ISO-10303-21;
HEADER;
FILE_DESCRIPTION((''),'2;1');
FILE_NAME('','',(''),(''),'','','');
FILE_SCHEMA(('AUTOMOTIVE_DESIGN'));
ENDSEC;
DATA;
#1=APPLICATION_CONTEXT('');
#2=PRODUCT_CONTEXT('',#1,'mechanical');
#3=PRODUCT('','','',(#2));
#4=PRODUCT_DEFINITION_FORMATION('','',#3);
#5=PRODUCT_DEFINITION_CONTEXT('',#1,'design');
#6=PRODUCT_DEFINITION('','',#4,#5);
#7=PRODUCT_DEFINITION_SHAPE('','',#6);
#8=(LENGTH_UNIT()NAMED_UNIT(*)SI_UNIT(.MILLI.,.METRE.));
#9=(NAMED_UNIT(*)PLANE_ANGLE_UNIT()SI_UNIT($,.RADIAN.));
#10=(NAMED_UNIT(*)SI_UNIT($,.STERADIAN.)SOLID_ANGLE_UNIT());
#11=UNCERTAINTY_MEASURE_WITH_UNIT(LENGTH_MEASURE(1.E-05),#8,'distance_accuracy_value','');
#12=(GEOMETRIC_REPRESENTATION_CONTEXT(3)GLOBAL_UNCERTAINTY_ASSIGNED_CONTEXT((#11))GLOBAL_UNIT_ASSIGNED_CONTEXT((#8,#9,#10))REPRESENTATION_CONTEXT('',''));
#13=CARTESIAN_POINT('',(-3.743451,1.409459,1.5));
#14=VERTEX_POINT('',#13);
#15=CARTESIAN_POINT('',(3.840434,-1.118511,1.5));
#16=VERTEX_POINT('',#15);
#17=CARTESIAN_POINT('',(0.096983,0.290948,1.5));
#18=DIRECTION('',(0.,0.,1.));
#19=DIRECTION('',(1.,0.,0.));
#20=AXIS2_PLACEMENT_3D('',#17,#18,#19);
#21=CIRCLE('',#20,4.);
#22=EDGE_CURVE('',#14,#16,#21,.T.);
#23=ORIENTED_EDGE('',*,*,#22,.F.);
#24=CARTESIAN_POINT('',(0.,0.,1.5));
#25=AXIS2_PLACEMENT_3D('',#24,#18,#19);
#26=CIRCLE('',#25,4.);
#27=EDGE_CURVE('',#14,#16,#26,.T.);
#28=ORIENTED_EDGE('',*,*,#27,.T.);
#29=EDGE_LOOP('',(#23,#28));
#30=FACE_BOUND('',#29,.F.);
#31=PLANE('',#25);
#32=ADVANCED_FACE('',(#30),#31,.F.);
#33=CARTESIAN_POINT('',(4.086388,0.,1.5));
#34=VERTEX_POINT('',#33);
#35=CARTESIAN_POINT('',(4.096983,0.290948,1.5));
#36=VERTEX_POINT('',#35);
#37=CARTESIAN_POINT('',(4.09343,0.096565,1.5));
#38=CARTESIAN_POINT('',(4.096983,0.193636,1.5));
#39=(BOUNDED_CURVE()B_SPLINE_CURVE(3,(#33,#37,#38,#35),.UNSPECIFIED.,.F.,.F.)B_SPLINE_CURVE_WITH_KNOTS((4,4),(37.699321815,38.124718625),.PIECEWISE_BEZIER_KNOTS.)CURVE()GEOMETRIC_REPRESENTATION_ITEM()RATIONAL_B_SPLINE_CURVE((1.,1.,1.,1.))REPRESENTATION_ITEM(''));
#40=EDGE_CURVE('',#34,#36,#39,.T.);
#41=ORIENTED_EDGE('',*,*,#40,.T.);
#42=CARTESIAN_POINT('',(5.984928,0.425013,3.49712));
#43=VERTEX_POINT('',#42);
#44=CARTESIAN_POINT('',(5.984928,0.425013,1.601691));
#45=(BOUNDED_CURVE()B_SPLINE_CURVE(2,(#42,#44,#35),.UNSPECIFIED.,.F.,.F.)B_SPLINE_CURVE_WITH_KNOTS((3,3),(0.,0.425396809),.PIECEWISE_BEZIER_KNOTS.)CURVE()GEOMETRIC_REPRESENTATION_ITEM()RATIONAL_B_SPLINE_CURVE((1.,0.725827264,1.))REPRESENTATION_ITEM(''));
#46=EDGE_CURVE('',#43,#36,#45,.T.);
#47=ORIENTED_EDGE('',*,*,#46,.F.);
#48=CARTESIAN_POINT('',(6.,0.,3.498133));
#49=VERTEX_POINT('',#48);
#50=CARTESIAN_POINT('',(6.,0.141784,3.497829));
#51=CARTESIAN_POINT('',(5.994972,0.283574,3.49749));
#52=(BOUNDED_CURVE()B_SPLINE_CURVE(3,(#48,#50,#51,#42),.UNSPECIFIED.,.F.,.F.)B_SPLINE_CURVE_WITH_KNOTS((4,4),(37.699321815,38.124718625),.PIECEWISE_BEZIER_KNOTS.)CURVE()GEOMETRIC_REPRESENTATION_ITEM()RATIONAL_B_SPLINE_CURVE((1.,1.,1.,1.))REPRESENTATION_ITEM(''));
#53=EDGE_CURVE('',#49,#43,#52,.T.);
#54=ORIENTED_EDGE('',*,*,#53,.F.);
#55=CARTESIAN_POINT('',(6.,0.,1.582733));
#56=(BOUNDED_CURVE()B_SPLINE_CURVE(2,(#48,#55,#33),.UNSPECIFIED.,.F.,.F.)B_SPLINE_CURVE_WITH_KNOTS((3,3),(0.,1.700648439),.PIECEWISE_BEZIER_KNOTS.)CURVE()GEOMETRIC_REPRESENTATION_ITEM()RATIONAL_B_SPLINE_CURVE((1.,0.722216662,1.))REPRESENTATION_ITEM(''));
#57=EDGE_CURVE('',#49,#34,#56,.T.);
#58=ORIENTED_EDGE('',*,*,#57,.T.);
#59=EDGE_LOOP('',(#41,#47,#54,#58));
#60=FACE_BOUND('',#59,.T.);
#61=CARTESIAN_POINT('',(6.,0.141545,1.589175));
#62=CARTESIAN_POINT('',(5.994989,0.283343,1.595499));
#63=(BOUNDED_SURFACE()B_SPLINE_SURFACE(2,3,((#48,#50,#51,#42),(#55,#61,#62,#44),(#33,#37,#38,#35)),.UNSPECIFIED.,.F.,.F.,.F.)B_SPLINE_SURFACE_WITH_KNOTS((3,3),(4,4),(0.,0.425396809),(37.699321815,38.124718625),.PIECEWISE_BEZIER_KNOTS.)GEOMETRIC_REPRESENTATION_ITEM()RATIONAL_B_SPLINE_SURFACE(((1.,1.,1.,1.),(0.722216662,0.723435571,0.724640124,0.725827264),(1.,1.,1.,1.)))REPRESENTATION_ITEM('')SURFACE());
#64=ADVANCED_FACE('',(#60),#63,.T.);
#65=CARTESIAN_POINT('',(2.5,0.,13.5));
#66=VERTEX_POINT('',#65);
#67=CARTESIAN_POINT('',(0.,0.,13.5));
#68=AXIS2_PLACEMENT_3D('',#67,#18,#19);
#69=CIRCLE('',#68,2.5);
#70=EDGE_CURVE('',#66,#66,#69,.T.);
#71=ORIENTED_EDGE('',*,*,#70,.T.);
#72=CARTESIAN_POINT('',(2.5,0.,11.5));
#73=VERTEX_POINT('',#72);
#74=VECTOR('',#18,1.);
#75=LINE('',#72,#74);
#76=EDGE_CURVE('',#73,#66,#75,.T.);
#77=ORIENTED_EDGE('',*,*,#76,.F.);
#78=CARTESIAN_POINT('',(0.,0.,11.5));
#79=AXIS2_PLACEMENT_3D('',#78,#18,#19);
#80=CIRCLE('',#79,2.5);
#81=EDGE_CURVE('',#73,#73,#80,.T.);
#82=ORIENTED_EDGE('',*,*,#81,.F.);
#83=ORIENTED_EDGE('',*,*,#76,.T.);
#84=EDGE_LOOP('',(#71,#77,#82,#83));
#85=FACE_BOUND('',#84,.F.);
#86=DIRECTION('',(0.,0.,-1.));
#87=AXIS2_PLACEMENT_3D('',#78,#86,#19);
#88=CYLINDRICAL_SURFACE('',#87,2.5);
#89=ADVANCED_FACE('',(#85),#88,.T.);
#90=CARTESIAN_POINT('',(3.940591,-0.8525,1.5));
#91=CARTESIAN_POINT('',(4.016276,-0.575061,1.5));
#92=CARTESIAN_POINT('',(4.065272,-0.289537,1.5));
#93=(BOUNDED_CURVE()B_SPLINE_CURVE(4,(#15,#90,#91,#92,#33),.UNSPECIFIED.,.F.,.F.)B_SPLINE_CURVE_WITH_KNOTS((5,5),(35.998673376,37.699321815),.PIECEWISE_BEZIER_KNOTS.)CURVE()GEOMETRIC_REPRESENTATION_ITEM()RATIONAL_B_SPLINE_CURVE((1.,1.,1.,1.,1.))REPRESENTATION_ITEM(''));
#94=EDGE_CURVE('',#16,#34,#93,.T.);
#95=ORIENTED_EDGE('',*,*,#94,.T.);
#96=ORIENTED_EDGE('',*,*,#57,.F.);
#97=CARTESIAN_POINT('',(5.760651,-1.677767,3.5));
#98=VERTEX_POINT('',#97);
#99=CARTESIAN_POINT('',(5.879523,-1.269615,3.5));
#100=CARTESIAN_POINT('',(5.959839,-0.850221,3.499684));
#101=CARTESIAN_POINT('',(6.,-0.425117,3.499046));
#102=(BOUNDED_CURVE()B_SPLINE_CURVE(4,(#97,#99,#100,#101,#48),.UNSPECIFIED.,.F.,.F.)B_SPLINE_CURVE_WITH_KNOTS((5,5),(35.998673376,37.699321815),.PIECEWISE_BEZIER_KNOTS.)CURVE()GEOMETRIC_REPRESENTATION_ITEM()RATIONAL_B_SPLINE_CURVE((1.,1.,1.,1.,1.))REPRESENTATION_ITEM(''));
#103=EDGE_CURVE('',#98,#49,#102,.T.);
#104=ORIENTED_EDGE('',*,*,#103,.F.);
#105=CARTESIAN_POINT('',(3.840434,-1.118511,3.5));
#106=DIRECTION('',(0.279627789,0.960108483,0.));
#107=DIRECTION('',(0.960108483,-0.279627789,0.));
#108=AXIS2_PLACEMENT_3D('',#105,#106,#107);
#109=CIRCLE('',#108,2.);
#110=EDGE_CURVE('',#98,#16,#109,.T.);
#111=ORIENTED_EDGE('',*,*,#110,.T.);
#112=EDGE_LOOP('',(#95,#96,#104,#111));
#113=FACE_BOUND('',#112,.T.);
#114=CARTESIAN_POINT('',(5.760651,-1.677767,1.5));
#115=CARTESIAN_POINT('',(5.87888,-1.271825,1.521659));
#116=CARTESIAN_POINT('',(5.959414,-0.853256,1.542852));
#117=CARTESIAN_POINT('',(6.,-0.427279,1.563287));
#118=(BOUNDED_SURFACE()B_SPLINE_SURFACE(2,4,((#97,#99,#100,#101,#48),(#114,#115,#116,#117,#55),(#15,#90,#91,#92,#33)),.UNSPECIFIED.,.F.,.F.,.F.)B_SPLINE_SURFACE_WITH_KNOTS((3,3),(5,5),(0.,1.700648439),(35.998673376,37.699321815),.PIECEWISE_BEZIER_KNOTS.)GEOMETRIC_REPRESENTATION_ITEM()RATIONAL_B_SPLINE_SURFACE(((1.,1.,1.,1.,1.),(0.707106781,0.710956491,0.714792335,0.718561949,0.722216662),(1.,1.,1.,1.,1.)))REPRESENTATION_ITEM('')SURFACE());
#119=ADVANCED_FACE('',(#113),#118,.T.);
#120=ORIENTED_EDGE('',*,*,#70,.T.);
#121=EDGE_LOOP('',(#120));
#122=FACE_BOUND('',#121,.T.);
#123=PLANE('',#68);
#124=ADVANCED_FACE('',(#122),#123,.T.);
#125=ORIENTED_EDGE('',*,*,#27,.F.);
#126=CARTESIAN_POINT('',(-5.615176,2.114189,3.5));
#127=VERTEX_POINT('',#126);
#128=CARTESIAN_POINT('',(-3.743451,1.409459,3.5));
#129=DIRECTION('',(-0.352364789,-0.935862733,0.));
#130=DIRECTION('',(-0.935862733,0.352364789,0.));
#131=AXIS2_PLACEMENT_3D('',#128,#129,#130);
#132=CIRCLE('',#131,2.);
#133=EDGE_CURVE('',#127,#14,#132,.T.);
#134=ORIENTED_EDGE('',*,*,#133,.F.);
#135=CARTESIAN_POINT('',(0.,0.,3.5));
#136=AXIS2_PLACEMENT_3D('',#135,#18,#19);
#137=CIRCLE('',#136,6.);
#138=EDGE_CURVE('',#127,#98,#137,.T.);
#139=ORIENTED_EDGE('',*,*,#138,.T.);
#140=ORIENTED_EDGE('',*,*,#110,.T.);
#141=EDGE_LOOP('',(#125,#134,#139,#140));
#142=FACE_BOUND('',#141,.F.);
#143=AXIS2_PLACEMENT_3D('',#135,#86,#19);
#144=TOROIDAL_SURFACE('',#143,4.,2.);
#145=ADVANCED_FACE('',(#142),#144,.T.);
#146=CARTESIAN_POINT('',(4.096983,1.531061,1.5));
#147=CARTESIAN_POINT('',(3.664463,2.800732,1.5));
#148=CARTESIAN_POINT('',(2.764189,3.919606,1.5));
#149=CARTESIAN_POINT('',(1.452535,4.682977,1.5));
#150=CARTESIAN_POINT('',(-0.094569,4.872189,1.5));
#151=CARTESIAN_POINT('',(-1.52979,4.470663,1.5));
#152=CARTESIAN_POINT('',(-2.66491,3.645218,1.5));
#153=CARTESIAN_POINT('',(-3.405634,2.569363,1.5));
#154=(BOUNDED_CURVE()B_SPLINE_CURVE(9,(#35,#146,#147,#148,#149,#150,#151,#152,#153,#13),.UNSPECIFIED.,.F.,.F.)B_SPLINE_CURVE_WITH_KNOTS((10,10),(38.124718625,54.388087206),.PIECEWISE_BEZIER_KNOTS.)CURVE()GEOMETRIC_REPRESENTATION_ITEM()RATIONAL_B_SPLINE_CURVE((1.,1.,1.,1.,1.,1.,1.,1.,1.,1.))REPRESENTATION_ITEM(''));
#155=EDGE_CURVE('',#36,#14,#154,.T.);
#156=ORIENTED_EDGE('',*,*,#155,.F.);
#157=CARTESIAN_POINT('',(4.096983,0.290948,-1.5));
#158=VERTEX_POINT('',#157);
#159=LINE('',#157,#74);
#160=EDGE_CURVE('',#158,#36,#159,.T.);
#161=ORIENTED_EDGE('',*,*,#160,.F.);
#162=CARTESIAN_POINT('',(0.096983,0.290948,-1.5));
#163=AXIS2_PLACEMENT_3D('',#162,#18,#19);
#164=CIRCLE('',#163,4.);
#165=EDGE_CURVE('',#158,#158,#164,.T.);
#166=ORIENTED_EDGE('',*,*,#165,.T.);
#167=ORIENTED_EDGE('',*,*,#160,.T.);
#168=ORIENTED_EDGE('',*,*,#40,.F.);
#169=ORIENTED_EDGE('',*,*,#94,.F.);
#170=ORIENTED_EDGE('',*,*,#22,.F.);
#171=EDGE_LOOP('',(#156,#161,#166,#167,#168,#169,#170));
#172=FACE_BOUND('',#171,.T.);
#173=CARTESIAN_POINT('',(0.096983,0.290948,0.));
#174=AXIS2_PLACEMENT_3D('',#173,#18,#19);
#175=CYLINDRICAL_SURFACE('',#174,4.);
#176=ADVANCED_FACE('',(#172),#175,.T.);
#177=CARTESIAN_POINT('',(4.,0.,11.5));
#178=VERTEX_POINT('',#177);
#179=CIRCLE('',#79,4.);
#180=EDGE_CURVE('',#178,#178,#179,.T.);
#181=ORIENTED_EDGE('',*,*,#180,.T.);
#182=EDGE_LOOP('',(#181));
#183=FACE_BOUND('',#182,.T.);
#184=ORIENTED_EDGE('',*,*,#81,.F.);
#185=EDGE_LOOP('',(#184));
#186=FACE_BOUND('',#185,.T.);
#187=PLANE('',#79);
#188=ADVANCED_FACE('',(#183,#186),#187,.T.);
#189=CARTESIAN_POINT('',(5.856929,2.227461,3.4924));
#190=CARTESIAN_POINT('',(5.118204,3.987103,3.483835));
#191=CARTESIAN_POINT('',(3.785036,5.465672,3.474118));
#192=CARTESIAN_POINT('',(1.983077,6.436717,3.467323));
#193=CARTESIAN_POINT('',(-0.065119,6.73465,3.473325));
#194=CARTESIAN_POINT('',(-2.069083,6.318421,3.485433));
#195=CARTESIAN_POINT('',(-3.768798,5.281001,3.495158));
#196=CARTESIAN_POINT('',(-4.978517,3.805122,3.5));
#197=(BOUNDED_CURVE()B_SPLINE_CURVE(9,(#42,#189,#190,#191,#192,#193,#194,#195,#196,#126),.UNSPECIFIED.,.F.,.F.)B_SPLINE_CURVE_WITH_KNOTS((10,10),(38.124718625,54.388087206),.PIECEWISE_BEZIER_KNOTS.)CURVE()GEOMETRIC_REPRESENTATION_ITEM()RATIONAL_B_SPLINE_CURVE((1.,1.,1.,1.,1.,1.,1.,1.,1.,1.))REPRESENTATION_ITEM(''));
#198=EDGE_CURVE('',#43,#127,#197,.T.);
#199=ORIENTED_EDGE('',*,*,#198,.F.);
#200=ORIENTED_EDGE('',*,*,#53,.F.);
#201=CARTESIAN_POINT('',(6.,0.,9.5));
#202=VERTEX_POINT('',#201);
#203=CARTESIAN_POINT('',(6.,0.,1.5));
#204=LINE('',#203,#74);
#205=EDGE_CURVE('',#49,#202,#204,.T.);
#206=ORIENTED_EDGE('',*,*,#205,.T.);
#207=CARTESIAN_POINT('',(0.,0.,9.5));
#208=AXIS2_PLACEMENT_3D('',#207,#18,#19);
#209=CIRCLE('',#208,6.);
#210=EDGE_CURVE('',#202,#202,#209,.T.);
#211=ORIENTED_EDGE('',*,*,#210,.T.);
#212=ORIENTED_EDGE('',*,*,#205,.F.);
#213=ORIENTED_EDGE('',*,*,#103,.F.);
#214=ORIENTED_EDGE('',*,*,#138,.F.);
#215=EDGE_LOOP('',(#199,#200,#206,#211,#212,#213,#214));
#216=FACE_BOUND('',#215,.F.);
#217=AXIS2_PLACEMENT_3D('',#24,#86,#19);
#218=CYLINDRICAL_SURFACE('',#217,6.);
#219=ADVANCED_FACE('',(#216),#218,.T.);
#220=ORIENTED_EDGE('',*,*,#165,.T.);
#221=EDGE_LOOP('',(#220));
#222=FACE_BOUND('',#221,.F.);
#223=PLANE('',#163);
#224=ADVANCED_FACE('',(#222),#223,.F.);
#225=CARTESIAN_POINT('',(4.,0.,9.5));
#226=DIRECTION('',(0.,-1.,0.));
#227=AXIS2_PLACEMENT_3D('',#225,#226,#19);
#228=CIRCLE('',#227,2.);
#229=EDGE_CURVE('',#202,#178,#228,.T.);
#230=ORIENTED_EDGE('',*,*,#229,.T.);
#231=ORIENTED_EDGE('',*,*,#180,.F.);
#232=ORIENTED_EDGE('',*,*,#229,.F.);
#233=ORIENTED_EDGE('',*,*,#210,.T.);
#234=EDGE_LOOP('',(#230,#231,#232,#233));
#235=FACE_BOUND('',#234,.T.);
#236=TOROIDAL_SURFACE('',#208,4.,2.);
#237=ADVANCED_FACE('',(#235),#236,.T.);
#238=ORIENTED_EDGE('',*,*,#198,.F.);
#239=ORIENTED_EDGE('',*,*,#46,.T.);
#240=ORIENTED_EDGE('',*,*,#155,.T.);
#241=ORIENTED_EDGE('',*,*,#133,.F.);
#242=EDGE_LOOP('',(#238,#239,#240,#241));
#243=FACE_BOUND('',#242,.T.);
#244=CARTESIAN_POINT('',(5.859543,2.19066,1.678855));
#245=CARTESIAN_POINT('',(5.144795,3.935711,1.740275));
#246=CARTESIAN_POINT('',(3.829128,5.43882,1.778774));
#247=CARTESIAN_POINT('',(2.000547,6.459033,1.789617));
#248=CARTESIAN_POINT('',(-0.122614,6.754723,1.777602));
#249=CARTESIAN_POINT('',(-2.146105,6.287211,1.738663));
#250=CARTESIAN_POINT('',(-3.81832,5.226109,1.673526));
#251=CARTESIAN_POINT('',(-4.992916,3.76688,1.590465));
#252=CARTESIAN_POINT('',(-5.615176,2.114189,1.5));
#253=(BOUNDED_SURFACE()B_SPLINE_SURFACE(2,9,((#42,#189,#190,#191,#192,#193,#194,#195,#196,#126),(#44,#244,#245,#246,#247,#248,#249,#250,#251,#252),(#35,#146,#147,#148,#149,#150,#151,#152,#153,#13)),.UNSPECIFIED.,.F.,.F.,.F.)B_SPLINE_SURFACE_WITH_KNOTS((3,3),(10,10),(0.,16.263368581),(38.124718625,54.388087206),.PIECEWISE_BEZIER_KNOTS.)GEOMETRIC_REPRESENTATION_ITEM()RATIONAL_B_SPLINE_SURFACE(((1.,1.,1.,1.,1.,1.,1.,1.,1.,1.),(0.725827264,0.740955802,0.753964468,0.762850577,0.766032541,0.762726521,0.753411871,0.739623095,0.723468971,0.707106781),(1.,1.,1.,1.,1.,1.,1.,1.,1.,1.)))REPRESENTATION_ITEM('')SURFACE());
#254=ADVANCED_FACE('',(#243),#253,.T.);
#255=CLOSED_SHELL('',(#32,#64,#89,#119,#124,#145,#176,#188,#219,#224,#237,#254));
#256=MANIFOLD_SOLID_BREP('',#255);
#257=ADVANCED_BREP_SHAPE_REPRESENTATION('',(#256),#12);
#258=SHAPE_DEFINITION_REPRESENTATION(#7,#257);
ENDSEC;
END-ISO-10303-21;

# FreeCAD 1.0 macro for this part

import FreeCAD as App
import Part
import Sketcher
from FreeCAD import Vector
Q = App.Units.Quantity


def edges_at(feature, points):
    """Names of the edges that pass closest to the given points."""
    edges = feature.Shape.Edges
    near = lambda p: min(range(len(edges)), key=lambda i: edges[i].distToShape(Part.Vertex(*p))[0])
    return sorted({f"Edge{near(p) + 1}" for p in points})

doc = App.newDocument("Part")
body = doc.addObject("PartDesign::Body", "Body")

# Sketch on XY plane
sketch1 = doc.addObject("Sketcher::SketchObject", "Sketch")
body.addObject(sketch1)
sketch1.AttachmentSupport = (doc.XY_Plane, [""])
sketch1.MapMode = "FlatFace"
sketch1.addGeometry(Part.Circle(Vector(0.1, 0.3, 0), Vector(0, 0, 1), 4), False)
sketch1.addConstraint([
    Sketcher.Constraint("Diameter", 0, Q("8 mm")),
    Sketcher.Constraint("DistanceX", -1, 1, 0, 3, Q("0.096983 mm")),
    Sketcher.Constraint("DistanceY", -1, 1, 0, 3, Q("0.290948 mm")),
])
pad1 = doc.addObject("PartDesign::Pad", "Pad")
body.addObject(pad1)
pad1.Profile = sketch1
pad1.Length = 3
pad1.Midplane = True

# Sketch on XY plane
sketch2 = doc.addObject("Sketcher::SketchObject", "Sketch001")
body.addObject(sketch2)
sketch2.AttachmentSupport = (doc.XY_Plane, [""])
sketch2.MapMode = "FlatFace"
sketch2.AttachmentOffset = App.Placement(Vector(0, 0, 1.5), App.Rotation())
sketch2.addGeometry(Part.Circle(Vector(0, 0, 0), Vector(0, 0, 1), 6), False)
sketch2.addConstraint([
    Sketcher.Constraint("Coincident", 0, 3, -1, 1),
    Sketcher.Constraint("Diameter", 0, Q("12 mm")),
])
pad2 = doc.addObject("PartDesign::Pad", "Pad001")
body.addObject(pad2)
pad2.Profile = sketch2
pad2.Length = 10

# Sketch on XY plane
sketch3 = doc.addObject("Sketcher::SketchObject", "Sketch002")
body.addObject(sketch3)
sketch3.AttachmentSupport = (doc.XY_Plane, [""])
sketch3.MapMode = "FlatFace"
sketch3.AttachmentOffset = App.Placement(Vector(0, 0, 11.5), App.Rotation())
sketch3.addGeometry(Part.Circle(Vector(0, 0, 0), Vector(0, 0, 1), 2.5), False)
sketch3.addConstraint([
    Sketcher.Constraint("Coincident", 0, 3, -1, 1),
    Sketcher.Constraint("Diameter", 0, Q("5 mm")),
])
pad3 = doc.addObject("PartDesign::Pad", "Pad002")
body.addObject(pad3)
pad3.Profile = sketch3
pad3.Length = 2
doc.recompute()

fillet = doc.addObject("PartDesign::Fillet", "Fillet")
body.addObject(fillet)
fillet.Base = (pad3, edges_at(pad3, [(-6, 0, 1.5), (-6, 0, 11.5)]))
fillet.Radius = 2

doc.recompute()
